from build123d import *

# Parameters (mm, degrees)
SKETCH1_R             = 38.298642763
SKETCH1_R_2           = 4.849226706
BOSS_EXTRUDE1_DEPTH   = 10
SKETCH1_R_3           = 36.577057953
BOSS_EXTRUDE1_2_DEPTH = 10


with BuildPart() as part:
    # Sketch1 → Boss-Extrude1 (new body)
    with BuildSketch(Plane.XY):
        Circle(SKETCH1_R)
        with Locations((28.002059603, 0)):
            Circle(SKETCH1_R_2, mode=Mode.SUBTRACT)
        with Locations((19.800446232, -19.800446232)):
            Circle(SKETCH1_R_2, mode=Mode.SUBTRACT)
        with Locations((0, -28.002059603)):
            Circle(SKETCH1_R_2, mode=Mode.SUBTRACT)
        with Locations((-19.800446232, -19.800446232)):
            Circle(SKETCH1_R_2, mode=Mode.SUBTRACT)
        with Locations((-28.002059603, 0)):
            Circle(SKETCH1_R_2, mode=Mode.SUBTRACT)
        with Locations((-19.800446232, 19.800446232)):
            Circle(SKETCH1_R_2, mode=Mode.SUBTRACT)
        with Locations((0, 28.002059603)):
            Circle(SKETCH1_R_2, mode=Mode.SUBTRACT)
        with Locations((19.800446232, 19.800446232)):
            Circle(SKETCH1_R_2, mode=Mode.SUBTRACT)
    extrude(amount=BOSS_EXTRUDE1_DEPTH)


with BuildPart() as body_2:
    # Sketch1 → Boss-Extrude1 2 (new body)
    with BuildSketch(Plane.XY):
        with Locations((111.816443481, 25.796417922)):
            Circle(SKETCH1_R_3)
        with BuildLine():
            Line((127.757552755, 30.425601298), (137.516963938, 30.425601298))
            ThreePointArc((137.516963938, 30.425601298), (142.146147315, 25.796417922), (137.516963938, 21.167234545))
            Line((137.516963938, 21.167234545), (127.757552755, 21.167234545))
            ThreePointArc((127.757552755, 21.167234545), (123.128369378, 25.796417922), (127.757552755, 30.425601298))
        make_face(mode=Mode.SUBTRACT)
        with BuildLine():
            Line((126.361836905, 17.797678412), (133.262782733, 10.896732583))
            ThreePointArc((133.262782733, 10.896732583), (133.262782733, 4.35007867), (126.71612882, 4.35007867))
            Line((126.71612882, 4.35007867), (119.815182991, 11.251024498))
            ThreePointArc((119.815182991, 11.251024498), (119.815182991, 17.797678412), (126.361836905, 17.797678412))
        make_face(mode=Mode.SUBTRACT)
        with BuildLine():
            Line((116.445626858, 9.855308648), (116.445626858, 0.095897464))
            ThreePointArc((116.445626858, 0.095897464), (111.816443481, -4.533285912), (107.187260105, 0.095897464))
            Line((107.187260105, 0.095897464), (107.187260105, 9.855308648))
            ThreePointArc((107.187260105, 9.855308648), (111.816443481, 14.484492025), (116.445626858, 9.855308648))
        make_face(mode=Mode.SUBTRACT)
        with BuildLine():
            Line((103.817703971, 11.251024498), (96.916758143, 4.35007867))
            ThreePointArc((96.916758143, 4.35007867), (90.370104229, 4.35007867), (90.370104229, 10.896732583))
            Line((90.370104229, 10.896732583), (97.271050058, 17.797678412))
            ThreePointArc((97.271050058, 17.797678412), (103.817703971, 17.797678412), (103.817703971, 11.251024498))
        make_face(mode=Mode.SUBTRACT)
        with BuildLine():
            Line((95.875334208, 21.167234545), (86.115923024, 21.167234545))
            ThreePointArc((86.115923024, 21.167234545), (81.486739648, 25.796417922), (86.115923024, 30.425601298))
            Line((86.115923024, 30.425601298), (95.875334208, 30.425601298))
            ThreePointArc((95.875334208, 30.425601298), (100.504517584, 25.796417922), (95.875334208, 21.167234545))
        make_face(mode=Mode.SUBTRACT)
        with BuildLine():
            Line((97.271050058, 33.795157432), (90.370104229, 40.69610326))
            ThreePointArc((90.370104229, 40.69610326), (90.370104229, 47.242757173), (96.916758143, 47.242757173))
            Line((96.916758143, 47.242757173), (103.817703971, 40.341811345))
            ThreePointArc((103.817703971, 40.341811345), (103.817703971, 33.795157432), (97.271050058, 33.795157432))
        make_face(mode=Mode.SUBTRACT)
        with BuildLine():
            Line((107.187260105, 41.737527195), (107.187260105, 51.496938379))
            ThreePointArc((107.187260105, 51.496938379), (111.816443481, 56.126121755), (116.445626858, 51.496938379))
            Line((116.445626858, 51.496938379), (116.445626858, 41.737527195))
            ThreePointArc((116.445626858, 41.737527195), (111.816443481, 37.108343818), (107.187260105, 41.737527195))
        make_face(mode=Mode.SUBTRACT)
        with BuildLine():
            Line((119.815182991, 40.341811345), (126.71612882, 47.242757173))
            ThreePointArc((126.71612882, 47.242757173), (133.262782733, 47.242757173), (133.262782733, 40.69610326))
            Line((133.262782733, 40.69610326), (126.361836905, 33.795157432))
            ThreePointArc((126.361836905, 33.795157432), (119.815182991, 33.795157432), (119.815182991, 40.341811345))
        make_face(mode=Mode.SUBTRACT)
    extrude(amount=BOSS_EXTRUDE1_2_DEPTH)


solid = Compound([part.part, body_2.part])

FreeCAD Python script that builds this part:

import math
import FreeCAD as App
import Part
import Sketcher

doc = App.newDocument("Part")
body = doc.addObject("PartDesign::Body", "Body")

# Sketch on XY plane
sketch1 = doc.addObject("Sketcher::SketchObject", "Sketch")
body.addObject(sketch1)
sketch1.AttachmentSupport = (doc.XY_Plane, [""])
sketch1.MapMode = "FlatFace"
sketch1.addGeometry(Part.Circle(App.Vector(0, 0, 0), App.Vector(0, 0, 1), 38.3), False)
sketch1.addGeometry(Part.Circle(App.Vector(-19.8, -19.8, 0), App.Vector(0, 0, 1), 4.8), False)
sketch1.addGeometry(Part.Circle(App.Vector(0, -28, 0), App.Vector(0, 0, 1), 4.8), False)
sketch1.addGeometry(Part.Circle(App.Vector(19.8, -19.8, 0), App.Vector(0, 0, 1), 4.8), False)
sketch1.addGeometry(Part.Circle(App.Vector(-28, 0, 0), App.Vector(0, 0, 1), 4.8), False)
sketch1.addGeometry(Part.Circle(App.Vector(-19.8, 19.8, 0), App.Vector(0, 0, 1), 4.8), False)
sketch1.addGeometry(Part.Circle(App.Vector(28, 0, 0), App.Vector(0, 0, 1), 4.8), False)
sketch1.addGeometry(Part.Circle(App.Vector(0, 28, 0), App.Vector(0, 0, 1), 4.8), False)
sketch1.addGeometry(Part.Circle(App.Vector(19.8, 19.8, 0), App.Vector(0, 0, 1), 4.8), False)
sketch1.addConstraint(Sketcher.Constraint("Coincident", 0, 3, -1, 1))
sketch1.addConstraint(Sketcher.Constraint("Equal", 1, 2))
sketch1.addConstraint(Sketcher.Constraint("Equal", 2, 3))
sketch1.addConstraint(Sketcher.Constraint("Equal", 3, 4))
sketch1.addConstraint(Sketcher.Constraint("Equal", 4, 5))
sketch1.addConstraint(Sketcher.Constraint("Equal", 5, 6))
sketch1.addConstraint(Sketcher.Constraint("Equal", 6, 7))
sketch1.addConstraint(Sketcher.Constraint("Equal", 7, 8))
sketch1.addConstraint(Sketcher.Constraint("Symmetric", 3, 3, 5, 3, -1, 1))
sketch1.addConstraint(Sketcher.Constraint("Symmetric", 4, 3, 6, 3, -1, 1))
sketch1.addConstraint(Sketcher.Constraint("Symmetric", 2, 3, 7, 3, -1, 1))
sketch1.addConstraint(Sketcher.Constraint("Symmetric", 1, 3, 8, 3, -1, 1))
sketch1.addConstraint(Sketcher.Constraint("Symmetric", 1, 3, 3, 3, -2))
sketch1.addConstraint(Sketcher.Constraint("PointOnObject", 2, 3, -2))
sketch1.addConstraint(Sketcher.Constraint("PointOnObject", 4, 3, -1))
sketch1.addConstraint(Sketcher.Constraint("Diameter", 0, 76.597286))
sketch1.addConstraint(Sketcher.Constraint("Diameter", 1, 9.698453))
sketch1.addConstraint(Sketcher.Constraint("DistanceY", 2, 3, -1, 1, 28.00206))
sketch1.addConstraint(Sketcher.Constraint("DistanceX", 4, 3, -1, 1, 28.00206))
sketch1.addConstraint(Sketcher.Constraint("DistanceX", 1, 3, -1, 1, 19.800446))
sketch1.addConstraint(Sketcher.Constraint("DistanceY", 1, 3, -1, 1, 19.800446))
pad1 = doc.addObject("PartDesign::Pad", "Pad")
body.addObject(pad1)
pad1.Profile = sketch1
pad1.Length = 10
body2 = doc.addObject("PartDesign::Body", "Body001")

# Sketch on XY plane
sketch2 = doc.addObject("Sketcher::SketchObject", "Sketch001")
body2.addObject(sketch2)
sketch2.AttachmentSupport = (doc.getObject("XY_Plane001"), [""])
sketch2.MapMode = "FlatFace"
sketch2.addGeometry(Part.Circle(App.Vector(111.8, 25.8, 0), App.Vector(0, 0, 1), 36.6), False)
sketch2.addGeometry(Part.ArcOfCircle(Part.Circle(App.Vector(111.8, 9.9, 0), App.Vector(0, 0, 1), 4.6), math.radians(0), math.radians(180)), False)
sketch2.addGeometry(Part.LineSegment(App.Vector(116.4, 9.9, 0), App.Vector(116.4, 0.1, 0)), False)
sketch2.addGeometry(Part.ArcOfCircle(Part.Circle(App.Vector(111.8, 0.1, 0), App.Vector(0, 0, 1), 4.6), math.radians(-180), math.radians(0)), False)
sketch2.addGeometry(Part.LineSegment(App.Vector(107.2, 0.1, 0), App.Vector(107.2, 9.9, 0)), False)
sketch2.addGeometry(Part.ArcOfCircle(Part.Circle(App.Vector(100.5, 14.5, 0), App.Vector(0, 0, 1), 4.6), math.radians(-45), math.radians(135)), False)
sketch2.addGeometry(Part.LineSegment(App.Vector(103.8, 11.3, 0), App.Vector(96.9, 4.4, 0)), False)
sketch2.addGeometry(Part.ArcOfCircle(Part.Circle(App.Vector(93.6, 7.6, 0), App.Vector(0, 0, 1), 4.6), math.radians(135), math.radians(315)), False)
sketch2.addGeometry(Part.LineSegment(App.Vector(90.4, 10.9, 0), App.Vector(97.3, 17.8, 0)), False)
sketch2.addGeometry(Part.ArcOfCircle(Part.Circle(App.Vector(123.1, 14.5, 0), App.Vector(0, 0, 1), 4.6), math.radians(45), math.radians(225)), False)
sketch2.addGeometry(Part.LineSegment(App.Vector(126.4, 17.8, 0), App.Vector(133.3, 10.9, 0)), False)
sketch2.addGeometry(Part.ArcOfCircle(Part.Circle(App.Vector(130, 7.6, 0), App.Vector(0, 0, 1), 4.6), math.radians(-135), math.radians(45)), False)
sketch2.addGeometry(Part.LineSegment(App.Vector(126.7, 4.4, 0), App.Vector(119.8, 11.3, 0)), False)
sketch2.addGeometry(Part.ArcOfCircle(Part.Circle(App.Vector(95.9, 25.8, 0), App.Vector(0, 0, 1), 4.6), math.radians(-90), math.radians(90)), False)
sketch2.addGeometry(Part.LineSegment(App.Vector(95.9, 21.2, 0), App.Vector(86.1, 21.2, 0)), False)
sketch2.addGeometry(Part.ArcOfCircle(Part.Circle(App.Vector(86.1, 25.8, 0), App.Vector(0, 0, 1), 4.6), math.radians(90), math.radians(270)), False)
sketch2.addGeometry(Part.LineSegment(App.Vector(86.1, 30.4, 0), App.Vector(95.9, 30.4, 0)), False)
sketch2.addGeometry(Part.ArcOfCircle(Part.Circle(App.Vector(100.5, 37.1, 0), App.Vector(0, 0, 1), 4.6), math.radians(-135), math.radians(45)), False)
sketch2.addGeometry(Part.LineSegment(App.Vector(97.3, 33.8, 0), App.Vector(90.4, 40.7, 0)), False)
sketch2.addGeometry(Part.ArcOfCircle(Part.Circle(App.Vector(93.6, 44, 0), App.Vector(0, 0, 1), 4.6), math.radians(45), math.radians(225)), False)
sketch2.addGeometry(Part.LineSegment(App.Vector(96.9, 47.2, 0), App.Vector(103.8, 40.3, 0)), False)
sketch2.addGeometry(Part.ArcOfCircle(Part.Circle(App.Vector(111.8, 41.7, 0), App.Vector(0, 0, 1), 4.6), math.radians(180), math.radians(360)), False)
sketch2.addGeometry(Part.LineSegment(App.Vector(107.2, 41.7, 0), App.Vector(107.2, 51.5, 0)), False)
sketch2.addGeometry(Part.ArcOfCircle(Part.Circle(App.Vector(111.8, 51.5, 0), App.Vector(0, 0, 1), 4.6), math.radians(0), math.radians(180)), False)
sketch2.addGeometry(Part.LineSegment(App.Vector(116.4, 51.5, 0), App.Vector(116.4, 41.7, 0)), False)
sketch2.addGeometry(Part.ArcOfCircle(Part.Circle(App.Vector(123.1, 37.1, 0), App.Vector(0, 0, 1), 4.6), math.radians(135), math.radians(315)), False)
sketch2.addGeometry(Part.LineSegment(App.Vector(119.8, 40.3, 0), App.Vector(126.7, 47.2, 0)), False)
sketch2.addGeometry(Part.ArcOfCircle(Part.Circle(App.Vector(130, 44, 0), App.Vector(0, 0, 1), 4.6), math.radians(-45), math.radians(135)), False)
sketch2.addGeometry(Part.LineSegment(App.Vector(133.3, 40.7, 0), App.Vector(126.4, 33.8, 0)), False)
sketch2.addGeometry(Part.ArcOfCircle(Part.Circle(App.Vector(127.8, 25.8, 0), App.Vector(0, 0, 1), 4.6), math.radians(90), math.radians(270)), False)
sketch2.addGeometry(Part.LineSegment(App.Vector(127.8, 30.4, 0), App.Vector(137.5, 30.4, 0)), False)
sketch2.addGeometry(Part.ArcOfCircle(Part.Circle(App.Vector(137.5, 25.8, 0), App.Vector(0, 0, 1), 4.6), math.radians(-90), math.radians(90)), False)
sketch2.addGeometry(Part.LineSegment(App.Vector(137.5, 21.2, 0), App.Vector(127.8, 21.2, 0)), False)
sketch2.addConstraint(Sketcher.Constraint("Tangent", 1, 1, 2, 1))
sketch2.addConstraint(Sketcher.Constraint("Tangent", 2, 2, 3, 2))
sketch2.addConstraint(Sketcher.Constraint("Tangent", 3, 1, 4, 1))
sketch2.addConstraint(Sketcher.Constraint("Tangent", 4, 2, 1, 2))
sketch2.addConstraint(Sketcher.Constraint("Tangent", 5, 1, 6, 1))
sketch2.addConstraint(Sketcher.Constraint("Tangent", 6, 2, 7, 2))
sketch2.addConstraint(Sketcher.Constraint("Tangent", 7, 1, 8, 1))
sketch2.addConstraint(Sketcher.Constraint("Tangent", 8, 2, 5, 2))
sketch2.addConstraint(Sketcher.Constraint("Tangent", 9, 1, 10, 1))
sketch2.addConstraint(Sketcher.Constraint("Tangent", 10, 2, 11, 2))
sketch2.addConstraint(Sketcher.Constraint("Tangent", 11, 1, 12, 1))
sketch2.addConstraint(Sketcher.Constraint("Tangent", 12, 2, 9, 2))
sketch2.addConstraint(Sketcher.Constraint("Tangent", 13, 1, 14, 1))
sketch2.addConstraint(Sketcher.Constraint("Tangent", 14, 2, 15, 2))
sketch2.addConstraint(Sketcher.Constraint("Tangent", 15, 1, 16, 1))
sketch2.addConstraint(Sketcher.Constraint("Tangent", 16, 2, 13, 2))
sketch2.addConstraint(Sketcher.Constraint("Tangent", 17, 1, 18, 1))
sketch2.addConstraint(Sketcher.Constraint("Tangent", 18, 2, 19, 2))
sketch2.addConstraint(Sketcher.Constraint("Tangent", 19, 1, 20, 1))
sketch2.addConstraint(Sketcher.Constraint("Tangent", 20, 2, 17, 2))
sketch2.addConstraint(Sketcher.Constraint("Tangent", 21, 1, 22, 1))
sketch2.addConstraint(Sketcher.Constraint("Tangent", 22, 2, 23, 2))
sketch2.addConstraint(Sketcher.Constraint("Tangent", 23, 1, 24, 1))
sketch2.addConstraint(Sketcher.Constraint("Tangent", 24, 2, 21, 2))
sketch2.addConstraint(Sketcher.Constraint("Tangent", 25, 1, 26, 1))
sketch2.addConstraint(Sketcher.Constraint("Tangent", 26, 2, 27, 2))
sketch2.addConstraint(Sketcher.Constraint("Tangent", 27, 1, 28, 1))
sketch2.addConstraint(Sketcher.Constraint("Tangent", 28, 2, 25, 2))
sketch2.addConstraint(Sketcher.Constraint("Tangent", 29, 1, 30, 1))
sketch2.addConstraint(Sketcher.Constraint("Tangent", 30, 2, 31, 2))
sketch2.addConstraint(Sketcher.Constraint("Tangent", 31, 1, 32, 1))
sketch2.addConstraint(Sketcher.Constraint("Tangent", 32, 2, 29, 2))
sketch2.addConstraint(Sketcher.Constraint("Vertical", 2))
sketch2.addConstraint(Sketcher.Constraint("Vertical", 4))
sketch2.addConstraint(Sketcher.Constraint("Horizontal", 14))
sketch2.addConstraint(Sketcher.Constraint("Horizontal", 16))
sketch2.addConstraint(Sketcher.Constraint("Vertical", 22))
sketch2.addConstraint(Sketcher.Constraint("Vertical", 24))
sketch2.addConstraint(Sketcher.Constraint("Horizontal", 30))
sketch2.addConstraint(Sketcher.Constraint("Horizontal", 32))
sketch2.addConstraint(Sketcher.Constraint("Equal", 3, 5))
sketch2.addConstraint(Sketcher.Constraint("Equal", 5, 7))
sketch2.addConstraint(Sketcher.Constraint("Equal", 7, 9))
sketch2.addConstraint(Sketcher.Constraint("Equal", 9, 11))
sketch2.addConstraint(Sketcher.Constraint("Equal", 11, 13))
sketch2.addConstraint(Sketcher.Constraint("Equal", 15, 17))
sketch2.addConstraint(Sketcher.Constraint("Equal", 17, 19))
sketch2.addConstraint(Sketcher.Constraint("Equal", 19, 21))
sketch2.addConstraint(Sketcher.Constraint("Equal", 23, 25))
sketch2.addConstraint(Sketcher.Constraint("Equal", 25, 27))
sketch2.addConstraint(Sketcher.Constraint("Equal", 27, 29))
sketch2.addConstraint(Sketcher.Constraint("Perpendicular", 8, 10))
sketch2.addConstraint(Sketcher.Constraint("Parallel", 12, 18))
sketch2.addConstraint(Sketcher.Constraint("Perpendicular", 20, 26))
sketch2.addConstraint(Sketcher.Constraint("Horizontal", 5, 3, 9, 3))
sketch2.addConstraint(Sketcher.Constraint("Horizontal", 7, 3, 11, 3))
sketch2.addConstraint(Sketcher.Constraint("Horizontal", 0, 3, 13, 3))
sketch2.addConstraint(Sketcher.Constraint("Horizontal", 17, 3, 25, 3))
sketch2.addConstraint(Sketcher.Constraint("Horizontal", 19, 3, 27, 3))
sketch2.addConstraint(Sketcher.Constraint("Horizontal", 15, 3, 29, 3))
sketch2.addConstraint(Sketcher.Constraint("Horizontal", 8, 2, 9, 1))
sketch2.addConstraint(Sketcher.Constraint("Vertical", 0, 3, 1, 3))
sketch2.addConstraint(Sketcher.Constraint("Vertical", 5, 3, 17, 3))
sketch2.addConstraint(Sketcher.Constraint("Vertical", 7, 3, 19, 3))
sketch2.addConstraint(Sketcher.Constraint("Vertical", 3, 3, 21, 3))
sketch2.addConstraint(Sketcher.Constraint("Vertical", 9, 3, 25, 3))
sketch2.addConstraint(Sketcher.Constraint("Equal", 16, 30))
sketch2.addConstraint(Sketcher.Constraint("Equal", 32, 2))
sketch2.addConstraint(Sketcher.Constraint("Equal", 4, 22))
sketch2.addConstraint(Sketcher.Constraint("Diameter", 0, 73.154116))
sketch2.addConstraint(Sketcher.Constraint("Radius", 1, 4.629183))
sketch2.addConstraint(Sketcher.Constraint("DistanceX", 14, 2, 14, 1, 9.759411))
sketch2.addConstraint(Sketcher.Constraint("DistanceY", -1, 1, 15, 1, 30.425601))
sketch2.addConstraint(Sketcher.Constraint("DistanceX", 6, 2, 3, 1, 10.270502))
sketch2.addConstraint(Sketcher.Constraint("DistanceX", 7, 1, 5, 1, 13.4476))
sketch2.addConstraint(Sketcher.Constraint("DistanceX", 2, 2, 11, 1, 10.270502))
sketch2.addConstraint(Sketcher.Constraint("DistanceY", 7, 1, 13, 1, 10.270502))
sketch2.addConstraint(Sketcher.Constraint("DistanceY", 15, 1, 18, 2, 10.270502))
sketch2.addConstraint(Sketcher.Constraint("DistanceY", -1, 1, 1, 3, 9.855309))
sketch2.addConstraint(Sketcher.Constraint("DistanceX", -1, 1, 7, 3, 93.643431))
sketch2.addConstraint(Sketcher.Constraint("DistanceY", -1, 1, 23, 3, 51.496938))
sketch2.addConstraint(Sketcher.Constraint("DistanceX", 13, 3, 0, 3, 15.941109))
sketch2.addConstraint(Sketcher.Constraint("DistanceX", 0, 3, 29, 3, 15.941109))
pad2 = doc.addObject("PartDesign::Pad", "Pad001")
body2.addObject(pad2)
pad2.Profile = sketch2
pad2.Length = 10

doc.recompute()
